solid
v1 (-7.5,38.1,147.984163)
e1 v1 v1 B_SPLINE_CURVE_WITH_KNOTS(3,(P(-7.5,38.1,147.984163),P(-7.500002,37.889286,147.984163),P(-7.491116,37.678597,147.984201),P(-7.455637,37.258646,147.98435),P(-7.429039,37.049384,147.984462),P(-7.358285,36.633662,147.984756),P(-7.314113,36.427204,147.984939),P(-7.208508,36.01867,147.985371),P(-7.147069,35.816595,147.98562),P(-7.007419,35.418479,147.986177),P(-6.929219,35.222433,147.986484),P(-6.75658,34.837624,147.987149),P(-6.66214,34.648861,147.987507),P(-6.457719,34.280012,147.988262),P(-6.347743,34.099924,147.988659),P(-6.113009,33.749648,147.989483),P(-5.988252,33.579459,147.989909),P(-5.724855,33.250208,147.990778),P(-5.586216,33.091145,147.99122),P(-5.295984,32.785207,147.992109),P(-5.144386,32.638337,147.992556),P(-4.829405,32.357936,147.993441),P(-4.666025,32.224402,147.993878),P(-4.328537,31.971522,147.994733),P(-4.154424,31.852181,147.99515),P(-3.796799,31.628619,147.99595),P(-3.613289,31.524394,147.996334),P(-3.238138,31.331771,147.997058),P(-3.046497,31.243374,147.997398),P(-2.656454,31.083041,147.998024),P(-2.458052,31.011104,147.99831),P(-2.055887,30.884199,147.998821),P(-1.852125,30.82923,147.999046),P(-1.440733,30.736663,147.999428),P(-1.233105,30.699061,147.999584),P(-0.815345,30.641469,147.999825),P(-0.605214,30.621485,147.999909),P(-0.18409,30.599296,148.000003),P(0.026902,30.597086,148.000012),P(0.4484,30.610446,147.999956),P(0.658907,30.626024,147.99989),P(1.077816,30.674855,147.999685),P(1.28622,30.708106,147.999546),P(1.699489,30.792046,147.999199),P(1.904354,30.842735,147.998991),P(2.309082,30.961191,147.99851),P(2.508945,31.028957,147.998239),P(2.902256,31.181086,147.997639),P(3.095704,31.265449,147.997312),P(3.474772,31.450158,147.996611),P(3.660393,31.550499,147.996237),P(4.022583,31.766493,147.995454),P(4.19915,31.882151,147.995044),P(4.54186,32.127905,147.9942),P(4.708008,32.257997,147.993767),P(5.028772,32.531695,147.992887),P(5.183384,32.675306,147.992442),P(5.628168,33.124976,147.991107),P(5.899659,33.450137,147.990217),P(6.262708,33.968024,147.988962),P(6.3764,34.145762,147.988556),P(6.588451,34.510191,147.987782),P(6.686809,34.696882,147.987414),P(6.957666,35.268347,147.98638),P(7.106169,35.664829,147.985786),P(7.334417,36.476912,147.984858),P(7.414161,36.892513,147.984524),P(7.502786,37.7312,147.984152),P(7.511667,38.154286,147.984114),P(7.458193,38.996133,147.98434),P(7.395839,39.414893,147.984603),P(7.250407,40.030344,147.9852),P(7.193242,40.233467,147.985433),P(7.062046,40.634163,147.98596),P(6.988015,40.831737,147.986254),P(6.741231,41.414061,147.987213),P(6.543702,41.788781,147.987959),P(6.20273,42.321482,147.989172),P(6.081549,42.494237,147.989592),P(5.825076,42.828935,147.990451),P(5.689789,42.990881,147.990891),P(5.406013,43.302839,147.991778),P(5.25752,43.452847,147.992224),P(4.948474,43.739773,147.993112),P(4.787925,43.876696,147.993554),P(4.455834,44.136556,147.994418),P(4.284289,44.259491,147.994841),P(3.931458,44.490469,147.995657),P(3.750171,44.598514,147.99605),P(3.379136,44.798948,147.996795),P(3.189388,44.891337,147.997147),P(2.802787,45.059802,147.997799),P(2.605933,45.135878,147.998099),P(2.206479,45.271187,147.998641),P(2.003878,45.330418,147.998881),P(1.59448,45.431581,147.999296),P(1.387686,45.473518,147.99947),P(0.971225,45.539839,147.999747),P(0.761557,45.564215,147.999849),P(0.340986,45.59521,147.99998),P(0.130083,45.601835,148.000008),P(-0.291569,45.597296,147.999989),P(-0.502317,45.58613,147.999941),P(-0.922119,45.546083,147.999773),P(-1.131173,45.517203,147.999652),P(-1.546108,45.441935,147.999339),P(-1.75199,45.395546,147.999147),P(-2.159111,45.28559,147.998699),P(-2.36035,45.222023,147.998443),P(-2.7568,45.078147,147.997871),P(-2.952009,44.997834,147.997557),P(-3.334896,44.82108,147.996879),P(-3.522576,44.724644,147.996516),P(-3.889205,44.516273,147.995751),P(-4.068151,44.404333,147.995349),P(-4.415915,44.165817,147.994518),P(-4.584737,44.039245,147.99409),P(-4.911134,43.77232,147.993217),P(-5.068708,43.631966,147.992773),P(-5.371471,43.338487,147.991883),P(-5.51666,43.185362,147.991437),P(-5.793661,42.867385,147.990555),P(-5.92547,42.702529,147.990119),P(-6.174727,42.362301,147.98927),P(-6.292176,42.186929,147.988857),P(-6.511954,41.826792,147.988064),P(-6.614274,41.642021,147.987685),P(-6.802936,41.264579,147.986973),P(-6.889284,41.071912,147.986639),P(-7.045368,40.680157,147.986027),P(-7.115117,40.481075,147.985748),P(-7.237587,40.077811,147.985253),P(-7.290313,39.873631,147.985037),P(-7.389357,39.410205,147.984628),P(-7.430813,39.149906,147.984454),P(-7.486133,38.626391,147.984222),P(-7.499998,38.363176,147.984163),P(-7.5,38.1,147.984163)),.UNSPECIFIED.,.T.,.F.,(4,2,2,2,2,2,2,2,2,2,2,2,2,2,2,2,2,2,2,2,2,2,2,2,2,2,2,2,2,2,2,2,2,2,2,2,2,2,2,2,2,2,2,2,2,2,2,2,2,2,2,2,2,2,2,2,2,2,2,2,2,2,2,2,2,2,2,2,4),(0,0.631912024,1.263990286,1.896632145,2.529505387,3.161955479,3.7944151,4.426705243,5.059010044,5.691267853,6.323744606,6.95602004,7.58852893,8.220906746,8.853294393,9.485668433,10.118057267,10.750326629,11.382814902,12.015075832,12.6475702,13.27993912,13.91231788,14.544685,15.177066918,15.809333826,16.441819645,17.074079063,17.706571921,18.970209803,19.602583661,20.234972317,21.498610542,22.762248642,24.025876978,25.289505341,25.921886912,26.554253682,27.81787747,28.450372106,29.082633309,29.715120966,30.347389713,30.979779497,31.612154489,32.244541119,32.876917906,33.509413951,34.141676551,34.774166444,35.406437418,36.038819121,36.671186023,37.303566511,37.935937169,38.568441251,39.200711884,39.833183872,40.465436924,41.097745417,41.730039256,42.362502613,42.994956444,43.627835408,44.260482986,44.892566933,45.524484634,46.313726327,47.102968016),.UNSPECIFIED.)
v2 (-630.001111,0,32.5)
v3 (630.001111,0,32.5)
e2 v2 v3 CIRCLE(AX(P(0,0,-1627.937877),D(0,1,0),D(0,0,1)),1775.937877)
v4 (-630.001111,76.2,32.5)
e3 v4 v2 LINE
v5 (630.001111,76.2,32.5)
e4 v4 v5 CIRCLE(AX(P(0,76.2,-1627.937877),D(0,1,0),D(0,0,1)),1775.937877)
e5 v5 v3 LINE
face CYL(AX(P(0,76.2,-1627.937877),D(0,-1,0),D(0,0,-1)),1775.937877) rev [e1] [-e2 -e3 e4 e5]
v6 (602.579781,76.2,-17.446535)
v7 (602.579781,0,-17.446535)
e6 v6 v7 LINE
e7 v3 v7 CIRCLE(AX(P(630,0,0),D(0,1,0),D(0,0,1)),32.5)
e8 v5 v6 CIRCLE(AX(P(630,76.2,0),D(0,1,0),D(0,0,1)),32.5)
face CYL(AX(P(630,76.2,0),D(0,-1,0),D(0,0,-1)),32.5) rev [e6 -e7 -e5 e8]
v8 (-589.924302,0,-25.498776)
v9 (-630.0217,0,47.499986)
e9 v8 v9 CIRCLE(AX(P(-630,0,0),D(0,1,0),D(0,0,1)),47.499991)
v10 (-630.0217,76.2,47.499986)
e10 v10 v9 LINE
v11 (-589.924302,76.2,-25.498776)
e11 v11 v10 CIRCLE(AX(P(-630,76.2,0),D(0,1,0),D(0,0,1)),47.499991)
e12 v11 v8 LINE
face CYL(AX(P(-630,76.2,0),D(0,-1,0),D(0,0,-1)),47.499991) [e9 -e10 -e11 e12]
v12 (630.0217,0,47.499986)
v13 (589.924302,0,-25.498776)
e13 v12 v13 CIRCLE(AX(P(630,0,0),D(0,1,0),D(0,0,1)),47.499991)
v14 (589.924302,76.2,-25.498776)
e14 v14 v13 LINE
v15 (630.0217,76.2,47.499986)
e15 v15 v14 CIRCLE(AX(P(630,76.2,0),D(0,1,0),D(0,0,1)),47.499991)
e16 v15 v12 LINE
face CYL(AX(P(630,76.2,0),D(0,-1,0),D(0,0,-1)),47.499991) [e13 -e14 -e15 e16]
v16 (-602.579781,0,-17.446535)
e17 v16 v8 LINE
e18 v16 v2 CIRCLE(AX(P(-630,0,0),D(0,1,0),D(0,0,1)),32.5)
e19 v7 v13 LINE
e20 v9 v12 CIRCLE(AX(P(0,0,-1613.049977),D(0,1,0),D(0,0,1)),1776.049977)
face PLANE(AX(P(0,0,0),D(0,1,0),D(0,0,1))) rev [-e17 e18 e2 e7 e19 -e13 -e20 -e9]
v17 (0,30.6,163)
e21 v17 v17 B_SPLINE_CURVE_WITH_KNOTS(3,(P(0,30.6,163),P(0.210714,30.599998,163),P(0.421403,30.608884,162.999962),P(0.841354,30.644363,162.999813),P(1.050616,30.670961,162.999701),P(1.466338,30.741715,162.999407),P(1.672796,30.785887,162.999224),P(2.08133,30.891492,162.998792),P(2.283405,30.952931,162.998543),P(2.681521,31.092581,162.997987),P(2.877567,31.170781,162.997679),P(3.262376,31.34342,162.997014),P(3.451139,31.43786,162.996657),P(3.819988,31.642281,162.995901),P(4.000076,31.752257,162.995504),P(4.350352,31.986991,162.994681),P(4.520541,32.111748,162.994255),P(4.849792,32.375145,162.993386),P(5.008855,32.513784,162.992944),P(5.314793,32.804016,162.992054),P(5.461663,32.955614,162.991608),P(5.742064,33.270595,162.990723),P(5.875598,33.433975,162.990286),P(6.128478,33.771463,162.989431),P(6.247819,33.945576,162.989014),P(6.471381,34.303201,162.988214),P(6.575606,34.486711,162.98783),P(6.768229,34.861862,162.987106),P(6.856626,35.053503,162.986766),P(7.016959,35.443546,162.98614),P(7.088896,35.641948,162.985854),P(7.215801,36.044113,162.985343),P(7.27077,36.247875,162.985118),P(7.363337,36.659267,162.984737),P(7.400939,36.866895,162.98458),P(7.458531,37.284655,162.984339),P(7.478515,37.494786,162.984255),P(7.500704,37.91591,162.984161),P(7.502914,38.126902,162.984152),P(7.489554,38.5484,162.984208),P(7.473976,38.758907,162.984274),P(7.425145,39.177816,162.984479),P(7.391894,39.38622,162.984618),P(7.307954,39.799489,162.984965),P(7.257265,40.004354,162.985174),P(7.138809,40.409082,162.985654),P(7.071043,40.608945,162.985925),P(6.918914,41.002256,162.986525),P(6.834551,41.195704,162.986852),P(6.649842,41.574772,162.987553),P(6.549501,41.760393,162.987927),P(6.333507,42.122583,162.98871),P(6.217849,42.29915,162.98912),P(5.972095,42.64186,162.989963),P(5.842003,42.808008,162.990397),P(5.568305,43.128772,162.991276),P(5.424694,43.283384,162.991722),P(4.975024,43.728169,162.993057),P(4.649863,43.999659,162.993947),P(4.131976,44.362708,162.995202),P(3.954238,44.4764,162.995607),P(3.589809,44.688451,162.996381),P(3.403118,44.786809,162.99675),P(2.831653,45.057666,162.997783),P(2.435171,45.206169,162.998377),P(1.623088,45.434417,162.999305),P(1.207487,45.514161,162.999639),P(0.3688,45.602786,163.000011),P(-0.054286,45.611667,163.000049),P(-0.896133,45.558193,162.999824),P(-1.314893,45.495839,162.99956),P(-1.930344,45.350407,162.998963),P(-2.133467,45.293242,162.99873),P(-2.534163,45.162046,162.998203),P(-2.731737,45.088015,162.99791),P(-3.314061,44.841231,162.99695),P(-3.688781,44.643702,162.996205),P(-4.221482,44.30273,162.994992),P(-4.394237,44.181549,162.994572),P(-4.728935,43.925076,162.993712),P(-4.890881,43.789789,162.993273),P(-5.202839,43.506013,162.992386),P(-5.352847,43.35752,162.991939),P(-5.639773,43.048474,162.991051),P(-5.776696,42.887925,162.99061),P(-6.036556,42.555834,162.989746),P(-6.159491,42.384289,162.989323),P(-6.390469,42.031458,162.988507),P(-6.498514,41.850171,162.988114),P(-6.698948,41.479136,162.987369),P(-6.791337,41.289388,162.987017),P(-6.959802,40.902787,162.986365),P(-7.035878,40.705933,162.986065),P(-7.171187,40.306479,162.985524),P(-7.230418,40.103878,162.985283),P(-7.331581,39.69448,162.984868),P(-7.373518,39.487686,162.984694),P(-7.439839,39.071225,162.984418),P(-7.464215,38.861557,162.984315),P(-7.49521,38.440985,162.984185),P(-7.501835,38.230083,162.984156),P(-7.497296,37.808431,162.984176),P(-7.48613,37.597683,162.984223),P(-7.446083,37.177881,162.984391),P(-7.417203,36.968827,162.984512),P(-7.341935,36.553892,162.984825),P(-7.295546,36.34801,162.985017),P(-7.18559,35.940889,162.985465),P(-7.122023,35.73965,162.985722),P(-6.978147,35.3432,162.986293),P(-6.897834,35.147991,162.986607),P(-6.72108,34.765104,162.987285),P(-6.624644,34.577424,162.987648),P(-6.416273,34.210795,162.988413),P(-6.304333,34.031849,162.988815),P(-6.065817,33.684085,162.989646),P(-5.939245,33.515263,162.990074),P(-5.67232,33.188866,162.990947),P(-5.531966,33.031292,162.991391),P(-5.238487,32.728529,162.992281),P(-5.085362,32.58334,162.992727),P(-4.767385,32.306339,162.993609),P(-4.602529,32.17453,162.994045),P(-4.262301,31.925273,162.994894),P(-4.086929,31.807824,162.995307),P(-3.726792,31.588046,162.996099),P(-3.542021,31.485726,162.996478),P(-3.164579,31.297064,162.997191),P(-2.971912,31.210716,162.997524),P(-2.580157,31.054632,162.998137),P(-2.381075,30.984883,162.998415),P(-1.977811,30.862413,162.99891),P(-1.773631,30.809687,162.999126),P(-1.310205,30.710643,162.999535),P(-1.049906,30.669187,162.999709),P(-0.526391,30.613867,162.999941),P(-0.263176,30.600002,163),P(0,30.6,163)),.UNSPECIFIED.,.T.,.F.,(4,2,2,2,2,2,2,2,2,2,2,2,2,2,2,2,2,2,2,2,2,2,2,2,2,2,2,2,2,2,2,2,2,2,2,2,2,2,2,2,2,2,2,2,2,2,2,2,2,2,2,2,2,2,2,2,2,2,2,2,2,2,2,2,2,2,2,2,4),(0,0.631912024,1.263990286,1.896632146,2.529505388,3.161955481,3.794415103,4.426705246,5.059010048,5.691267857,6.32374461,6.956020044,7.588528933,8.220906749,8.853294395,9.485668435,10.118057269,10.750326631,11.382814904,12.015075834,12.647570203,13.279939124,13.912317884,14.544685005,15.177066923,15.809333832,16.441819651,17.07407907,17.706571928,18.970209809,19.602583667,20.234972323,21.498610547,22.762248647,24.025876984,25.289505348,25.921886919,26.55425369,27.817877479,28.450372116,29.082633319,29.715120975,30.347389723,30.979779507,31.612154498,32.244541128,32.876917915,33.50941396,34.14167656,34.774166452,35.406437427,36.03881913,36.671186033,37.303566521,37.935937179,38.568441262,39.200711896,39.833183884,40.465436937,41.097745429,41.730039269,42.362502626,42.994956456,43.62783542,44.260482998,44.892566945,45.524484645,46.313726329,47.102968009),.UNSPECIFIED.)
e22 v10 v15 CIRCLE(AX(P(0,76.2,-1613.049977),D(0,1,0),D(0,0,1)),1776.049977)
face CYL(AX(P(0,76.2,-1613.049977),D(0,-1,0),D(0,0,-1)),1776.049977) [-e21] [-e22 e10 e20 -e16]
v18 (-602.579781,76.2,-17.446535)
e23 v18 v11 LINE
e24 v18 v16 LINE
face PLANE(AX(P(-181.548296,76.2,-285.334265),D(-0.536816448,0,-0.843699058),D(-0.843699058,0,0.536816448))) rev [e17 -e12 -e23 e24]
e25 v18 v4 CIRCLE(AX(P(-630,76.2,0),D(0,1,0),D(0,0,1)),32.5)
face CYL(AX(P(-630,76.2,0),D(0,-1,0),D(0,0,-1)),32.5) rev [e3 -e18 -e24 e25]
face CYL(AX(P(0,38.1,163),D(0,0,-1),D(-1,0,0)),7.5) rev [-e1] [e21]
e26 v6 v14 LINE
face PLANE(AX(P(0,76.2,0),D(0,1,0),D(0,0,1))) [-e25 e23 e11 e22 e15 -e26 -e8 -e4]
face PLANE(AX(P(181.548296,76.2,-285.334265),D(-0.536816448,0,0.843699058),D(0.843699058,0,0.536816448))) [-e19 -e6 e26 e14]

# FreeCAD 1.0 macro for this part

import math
import FreeCAD as App
import Part
import Sketcher
from FreeCAD import Vector

doc = App.newDocument("Part")
body = doc.addObject("PartDesign::Body", "Body")

sketch1 = body.newObject("Sketcher::SketchObject", "Sketch")
sketch1.AttachmentSupport = (doc.getObject("XZ_Plane"), [""])
sketch1.MapMode = "FlatFace"
sketch1.addGeometry([
    Part.ArcOfCircle(Part.Circle(Vector(-630, 0, 0), Vector(0, 0, 1), 32), math.radians(90), math.radians(328)),
    Part.LineSegment(Vector(-603, -17, 0), Vector(-590, -25, 0)),
    Part.ArcOfCircle(Part.Circle(Vector(-630, 0, 0), Vector(0, 0, 1), 47), math.radians(90), math.radians(328)),
    Part.ArcOfCircle(Part.Circle(Vector(0, -1613, 0), Vector(0, 0, 1), 1776), math.radians(69), math.radians(111)),
    Part.ArcOfCircle(Part.Circle(Vector(630, 0, 0), Vector(0, 0, 1), 47), math.radians(-148), math.radians(90)),
    Part.LineSegment(Vector(590, -25, 0), Vector(603, -17, 0)),
    Part.ArcOfCircle(Part.Circle(Vector(630, 0, 0), Vector(0, 0, 1), 32), math.radians(-148), math.radians(90)),
    Part.ArcOfCircle(Part.Circle(Vector(0, -1628, 0), Vector(0, 0, 1), 1776), math.radians(69), math.radians(111)),
], False)
sketch1.addConstraint([
    Sketcher.Constraint("Coincident", 0, 2, 1, 1),
    Sketcher.Constraint("Coincident", 1, 2, 2, 2),
    Sketcher.Constraint("Coincident", 2, 1, 3, 2),
    Sketcher.Constraint("Coincident", 3, 1, 4, 2),
    Sketcher.Constraint("Coincident", 4, 1, 5, 1),
    Sketcher.Constraint("Coincident", 5, 2, 6, 1),
    Sketcher.Constraint("Coincident", 6, 2, 7, 1),
    Sketcher.Constraint("Coincident", 7, 2, 0, 1),
    Sketcher.Constraint("Coincident", 2, 3, 0, 3),
    Sketcher.Constraint("Coincident", 6, 3, 4, 3),
    Sketcher.Constraint("Equal", 2, 4),
    Sketcher.Constraint("Equal", 0, 6),
    Sketcher.Constraint("Symmetric", 0, 3, 4, 3, -1, 1),
    Sketcher.Constraint("Symmetric", 1, 2, 4, 1, -2),
    Sketcher.Constraint("PointOnObject", 3, 3, -2),
    Sketcher.Constraint("PointOnObject", 7, 3, -2),
    Sketcher.Constraint("Horizontal", 0, 2, 5, 2),
    Sketcher.Constraint("Radius", 0, 32.5),
    Sketcher.Constraint("DistanceX", 0, 3, -1, 1, 630.0),
    Sketcher.Constraint("Radius", 2, 47.499991),
    Sketcher.Constraint("Radius", 3, 1776.049977),
    Sketcher.Constraint("Radius", 7, 1775.937877),
    Sketcher.Constraint("DistanceX", 2, 1, -1, 1, 630.0217),
    Sketcher.Constraint("DistanceY", 7, 3, 3, 3, 14.887899),
    Sketcher.Constraint("DistanceX", 0, 2, -1, 1, 602.579781),
    Sketcher.Constraint("DistanceX", 0, 2, 1, 2, 12.655478),
])
pad1 = body.newObject("PartDesign::Pad", "Pad")
pad1.Profile = sketch1
pad1.Length = 76.2
pad1.Reversed = True

sketch2 = body.newObject("Sketcher::SketchObject", "Sketch001")
sketch2.AttachmentSupport = (doc.getObject("XY_Plane"), [""])
sketch2.MapMode = "FlatFace"
sketch2.addGeometry(Part.Circle(Vector(0, 38, 0), Vector(0, 0, 1), 8), False)
sketch2.addConstraint([
    Sketcher.Constraint("PointOnObject", 0, 3, -2),
    Sketcher.Constraint("Diameter", 0, 15.0),
    Sketcher.Constraint("DistanceY", -1, 1, 0, 3, 38.1),
])
pocket1 = body.newObject("PartDesign::Pocket", "Pocket")
pocket1.Profile = sketch2
pocket1.Type = "ThroughAll"
pocket1.Reversed = True

doc.recompute()
